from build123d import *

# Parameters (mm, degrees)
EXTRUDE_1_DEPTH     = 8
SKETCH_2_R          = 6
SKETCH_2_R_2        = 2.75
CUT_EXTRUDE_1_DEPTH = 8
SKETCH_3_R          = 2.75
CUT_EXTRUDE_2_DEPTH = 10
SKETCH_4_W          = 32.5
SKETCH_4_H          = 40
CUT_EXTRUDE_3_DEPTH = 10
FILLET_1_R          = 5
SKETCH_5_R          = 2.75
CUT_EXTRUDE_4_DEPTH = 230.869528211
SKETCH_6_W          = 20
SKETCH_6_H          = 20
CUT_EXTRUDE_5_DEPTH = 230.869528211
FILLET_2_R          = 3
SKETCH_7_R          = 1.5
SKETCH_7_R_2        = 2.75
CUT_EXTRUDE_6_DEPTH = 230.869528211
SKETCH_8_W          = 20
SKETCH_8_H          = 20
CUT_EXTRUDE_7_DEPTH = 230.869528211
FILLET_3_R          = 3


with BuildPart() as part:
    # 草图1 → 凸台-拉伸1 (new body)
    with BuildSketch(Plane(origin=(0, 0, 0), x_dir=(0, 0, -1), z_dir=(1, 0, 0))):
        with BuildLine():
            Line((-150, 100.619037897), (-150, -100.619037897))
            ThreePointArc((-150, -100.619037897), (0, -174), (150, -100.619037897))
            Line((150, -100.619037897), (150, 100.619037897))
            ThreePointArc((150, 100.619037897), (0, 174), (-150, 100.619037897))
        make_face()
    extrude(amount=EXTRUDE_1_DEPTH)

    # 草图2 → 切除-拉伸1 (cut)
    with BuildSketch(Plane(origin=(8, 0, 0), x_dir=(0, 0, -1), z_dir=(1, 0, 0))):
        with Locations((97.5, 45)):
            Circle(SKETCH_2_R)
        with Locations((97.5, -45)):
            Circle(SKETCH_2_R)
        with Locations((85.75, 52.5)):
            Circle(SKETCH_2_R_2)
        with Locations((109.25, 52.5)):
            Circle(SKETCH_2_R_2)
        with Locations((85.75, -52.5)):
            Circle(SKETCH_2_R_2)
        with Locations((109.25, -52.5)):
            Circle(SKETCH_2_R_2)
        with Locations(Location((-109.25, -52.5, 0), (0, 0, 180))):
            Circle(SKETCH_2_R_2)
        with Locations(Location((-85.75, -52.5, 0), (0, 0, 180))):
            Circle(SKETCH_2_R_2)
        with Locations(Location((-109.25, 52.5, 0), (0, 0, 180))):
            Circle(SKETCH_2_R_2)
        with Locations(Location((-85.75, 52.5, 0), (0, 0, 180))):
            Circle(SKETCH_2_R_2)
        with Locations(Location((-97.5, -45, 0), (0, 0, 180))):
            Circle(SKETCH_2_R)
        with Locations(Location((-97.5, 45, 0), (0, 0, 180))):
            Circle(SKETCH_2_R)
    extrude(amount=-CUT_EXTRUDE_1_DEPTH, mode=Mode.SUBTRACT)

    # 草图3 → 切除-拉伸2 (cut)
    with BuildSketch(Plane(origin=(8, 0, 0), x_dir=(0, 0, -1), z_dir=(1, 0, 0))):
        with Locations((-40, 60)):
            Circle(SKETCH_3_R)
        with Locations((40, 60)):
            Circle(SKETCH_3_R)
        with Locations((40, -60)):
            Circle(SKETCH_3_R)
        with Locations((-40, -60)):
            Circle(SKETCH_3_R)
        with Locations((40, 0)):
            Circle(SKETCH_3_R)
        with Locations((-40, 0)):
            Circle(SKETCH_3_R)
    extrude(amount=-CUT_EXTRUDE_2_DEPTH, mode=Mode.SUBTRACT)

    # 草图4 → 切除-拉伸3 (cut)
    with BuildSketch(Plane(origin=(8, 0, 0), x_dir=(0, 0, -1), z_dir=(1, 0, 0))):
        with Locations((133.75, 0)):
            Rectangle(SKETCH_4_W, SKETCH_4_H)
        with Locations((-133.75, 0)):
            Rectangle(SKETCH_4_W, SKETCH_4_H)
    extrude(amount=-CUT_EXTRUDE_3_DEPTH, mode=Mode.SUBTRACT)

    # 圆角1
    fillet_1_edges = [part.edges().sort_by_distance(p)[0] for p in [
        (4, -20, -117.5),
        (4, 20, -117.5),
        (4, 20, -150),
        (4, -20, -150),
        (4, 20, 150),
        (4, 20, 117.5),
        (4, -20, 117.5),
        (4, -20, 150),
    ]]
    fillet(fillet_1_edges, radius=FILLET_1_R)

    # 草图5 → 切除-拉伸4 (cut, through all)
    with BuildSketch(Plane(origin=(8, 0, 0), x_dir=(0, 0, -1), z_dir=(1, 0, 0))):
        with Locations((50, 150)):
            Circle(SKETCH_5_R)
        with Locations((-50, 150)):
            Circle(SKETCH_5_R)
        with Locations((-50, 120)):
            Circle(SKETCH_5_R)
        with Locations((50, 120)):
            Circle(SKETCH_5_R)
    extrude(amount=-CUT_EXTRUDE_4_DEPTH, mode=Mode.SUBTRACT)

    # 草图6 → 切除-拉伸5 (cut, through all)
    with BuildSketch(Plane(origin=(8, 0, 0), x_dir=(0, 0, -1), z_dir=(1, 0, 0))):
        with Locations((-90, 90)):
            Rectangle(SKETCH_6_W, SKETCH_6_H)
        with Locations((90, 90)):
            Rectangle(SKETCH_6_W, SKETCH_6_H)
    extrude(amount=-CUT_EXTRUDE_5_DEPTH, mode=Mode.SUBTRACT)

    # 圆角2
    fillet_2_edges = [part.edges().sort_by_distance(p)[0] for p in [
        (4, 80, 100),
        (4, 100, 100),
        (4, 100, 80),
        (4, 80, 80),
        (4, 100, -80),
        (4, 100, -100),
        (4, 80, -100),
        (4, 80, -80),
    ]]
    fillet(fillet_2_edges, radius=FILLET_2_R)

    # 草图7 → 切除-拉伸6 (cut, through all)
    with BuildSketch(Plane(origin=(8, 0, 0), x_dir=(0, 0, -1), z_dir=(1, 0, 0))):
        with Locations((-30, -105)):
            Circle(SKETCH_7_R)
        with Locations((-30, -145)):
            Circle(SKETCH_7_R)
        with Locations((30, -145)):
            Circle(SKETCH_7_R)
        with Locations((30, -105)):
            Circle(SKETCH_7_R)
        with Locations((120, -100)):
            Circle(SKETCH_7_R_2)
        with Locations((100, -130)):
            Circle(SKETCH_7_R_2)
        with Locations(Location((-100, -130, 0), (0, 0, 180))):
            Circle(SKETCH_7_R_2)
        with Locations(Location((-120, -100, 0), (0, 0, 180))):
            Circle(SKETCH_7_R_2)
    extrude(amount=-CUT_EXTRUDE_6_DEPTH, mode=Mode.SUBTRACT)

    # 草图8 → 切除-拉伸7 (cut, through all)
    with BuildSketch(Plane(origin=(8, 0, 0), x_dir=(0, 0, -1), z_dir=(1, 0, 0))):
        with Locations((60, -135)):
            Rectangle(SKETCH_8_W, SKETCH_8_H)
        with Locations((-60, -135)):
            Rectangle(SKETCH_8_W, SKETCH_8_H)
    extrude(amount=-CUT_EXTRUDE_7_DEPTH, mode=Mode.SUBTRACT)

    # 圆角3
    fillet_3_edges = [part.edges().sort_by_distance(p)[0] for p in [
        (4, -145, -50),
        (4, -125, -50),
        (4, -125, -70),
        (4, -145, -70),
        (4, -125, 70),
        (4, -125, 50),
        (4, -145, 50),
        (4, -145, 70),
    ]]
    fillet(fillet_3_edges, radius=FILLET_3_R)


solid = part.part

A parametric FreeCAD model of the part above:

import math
import FreeCAD as App
import Part
import Sketcher
from FreeCAD import Vector
Q = App.Units.Quantity


def edges_at(feature, points):
    """Names of the edges that pass closest to the given points."""
    edges = feature.Shape.Edges
    near = lambda p: min(range(len(edges)), key=lambda i: edges[i].distToShape(Part.Vertex(*p))[0])
    return sorted({f"Edge{near(p) + 1}" for p in points})


def add_polygon(sketch, points):
    """Adds a closed chain of lines whose ends are joined by coincident constraints."""
    first, n = sketch.GeometryCount, len(points)
    for a, b in zip(points, points[1:] + points[:1]):
        sketch.addGeometry(Part.LineSegment(App.Vector(*a, 0), App.Vector(*b, 0)), False)
    for i in range(n):
        sketch.addConstraint(Sketcher.Constraint("Coincident", first + i, 2, first + (i + 1) % n, 1))

doc = App.newDocument("Part")
body = doc.addObject("PartDesign::Body", "Body")

# Sketch on YZ plane
sketch1 = body.newObject("Sketcher::SketchObject", "Sketch")
sketch1.AttachmentSupport = (doc.getObject("YZ_Plane"), [""])
sketch1.MapMode = "FlatFace"
sketch1.addGeometry([
    Part.LineSegment(Vector(101, 150, 0), Vector(-101, 150, 0)),
    Part.ArcOfCircle(Part.Circle(Vector(16, 0, 0), Vector(0, 0, 1), 190), math.radians(128), math.radians(232)),
    Part.LineSegment(Vector(-101, -150, 0), Vector(101, -150, 0)),
    Part.ArcOfCircle(Part.Circle(Vector(-16, 0, 0), Vector(0, 0, 1), 190), math.radians(-52), math.radians(52)),
], False)
sketch1.addConstraint([
    Sketcher.Constraint("Coincident", 0, 2, 1, 1),
    Sketcher.Constraint("Coincident", 1, 2, 2, 1),
    Sketcher.Constraint("Coincident", 2, 2, 3, 1),
    Sketcher.Constraint("Coincident", 3, 2, 0, 1),
    Sketcher.Constraint("Horizontal", 0),
    Sketcher.Constraint("Horizontal", 2),
    Sketcher.Constraint("Equal", 1, 3),
    Sketcher.Constraint("Symmetric", 1, 3, 3, 3, -1, 1),
    Sketcher.Constraint("Symmetric", 0, 2, 1, 2, -1),
    Sketcher.Constraint("Radius", 1, Q("190 mm")),
    Sketcher.Constraint("DistanceX", -1, 1, 1, 3, Q("16 mm")),
    Sketcher.Constraint("DistanceY", -1, 1, 0, 2, Q("150 mm")),
])
pad1 = body.newObject("PartDesign::Pad", "Pad")
pad1.Profile = sketch1
pad1.Length = 8

# Sketch on YZ plane
sketch2 = body.newObject("Sketcher::SketchObject", "Sketch001")
sketch2.AttachmentSupport = (doc.getObject("YZ_Plane"), [""])
sketch2.MapMode = "FlatFace"
sketch2.AttachmentOffset = App.Placement(Vector(0, 0, 8), App.Rotation())
sketch2.addGeometry([
    Part.Circle(Vector(45, -97.5, 0), Vector(0, 0, 1), 6),  # 0
    Part.Circle(Vector(-45, -97.5, 0), Vector(0, 0, 1), 6),  # 1
    Part.Circle(Vector(52.5, -85.8, 0), Vector(0, 0, 1), 2.8),  # 2
    Part.Circle(Vector(52.5, -109.2, 0), Vector(0, 0, 1), 2.8),  # 3
    Part.Circle(Vector(-52.5, -85.8, 0), Vector(0, 0, 1), 2.8),  # 4
    Part.Circle(Vector(-52.5, -109.2, 0), Vector(0, 0, 1), 2.8),  # 5
    Part.Circle(Vector(-52.5, 109.2, 0), Vector(0, 0, 1), 2.8),  # 6
    Part.Circle(Vector(-52.5, 85.8, 0), Vector(0, 0, 1), 2.8),  # 7
    Part.Circle(Vector(52.5, 109.2, 0), Vector(0, 0, 1), 2.8),  # 8
    Part.Circle(Vector(52.5, 85.8, 0), Vector(0, 0, 1), 2.8),  # 9
    Part.Circle(Vector(-45, 97.5, 0), Vector(0, 0, 1), 6),  # 10
    Part.Circle(Vector(45, 97.5, 0), Vector(0, 0, 1), 6),  # 11
], False)
sketch2.addConstraint([
    Sketcher.Constraint("Equal", 0, 1),
    Sketcher.Constraint("Equal", 2, 3),
    Sketcher.Constraint("Equal", 3, 4),
    Sketcher.Constraint("Equal", 4, 5),
    Sketcher.Constraint("Equal", 5, 6),
    Sketcher.Constraint("Equal", 6, 7),
    Sketcher.Constraint("Equal", 7, 8),
    Sketcher.Constraint("Equal", 8, 9),
    Sketcher.Constraint("Equal", 1, 10),
    Sketcher.Constraint("Equal", 10, 11),
    Sketcher.Constraint("Symmetric", 3, 3, 6, 3, -1, 1),
    Sketcher.Constraint("Symmetric", 2, 3, 7, 3, -1, 1),
    Sketcher.Constraint("Symmetric", 5, 3, 8, 3, -1, 1),
    Sketcher.Constraint("Symmetric", 4, 3, 9, 3, -1, 1),
    Sketcher.Constraint("Symmetric", 0, 3, 10, 3, -1, 1),
    Sketcher.Constraint("Symmetric", 1, 3, 11, 3, -1, 1),
    Sketcher.Constraint("Symmetric", 0, 3, 1, 3, -2),
    Sketcher.Constraint("Symmetric", 2, 3, 4, 3, -2),
    Sketcher.Constraint("Symmetric", 3, 3, 5, 3, -2),
    Sketcher.Constraint("Vertical", 2, 3, 3, 3),
    Sketcher.Constraint("Diameter", 0, Q("12 mm")),
    Sketcher.Constraint("Diameter", 2, Q("5.5 mm")),
    Sketcher.Constraint("DistanceX", -1, 1, 0, 3, Q("45 mm")),
    Sketcher.Constraint("DistanceX", 4, 3, 2, 3, Q("105 mm")),
    Sketcher.Constraint("DistanceY", 4, 3, 6, 3, Q("195 mm")),
    Sketcher.Constraint("DistanceY", 0, 3, -1, 1, Q("97.5 mm")),
    Sketcher.Constraint("DistanceY", 3, 3, 2, 3, Q("23.5 mm")),
])
pocket1 = body.newObject("PartDesign::Pocket", "Pocket")
pocket1.Profile = sketch2
pocket1.Length = 8

# Sketch on YZ plane
sketch3 = body.newObject("Sketcher::SketchObject", "Sketch002")
sketch3.AttachmentSupport = (doc.getObject("YZ_Plane"), [""])
sketch3.MapMode = "FlatFace"
sketch3.AttachmentOffset = App.Placement(Vector(0, 0, 8), App.Rotation())
sketch3.addGeometry([
    Part.Circle(Vector(60, 40, 0), Vector(0, 0, 1), 2.8),  # 0
    Part.Circle(Vector(60, -40, 0), Vector(0, 0, 1), 2.8),  # 1
    Part.Circle(Vector(-60, -40, 0), Vector(0, 0, 1), 2.8),  # 2
    Part.Circle(Vector(-60, 40, 0), Vector(0, 0, 1), 2.8),  # 3
    Part.Circle(Vector(0, -40, 0), Vector(0, 0, 1), 2.8),  # 4
    Part.Circle(Vector(0, 40, 0), Vector(0, 0, 1), 2.8),  # 5
], False)
sketch3.addConstraint([
    Sketcher.Constraint("Equal", 0, 1),
    Sketcher.Constraint("Equal", 1, 2),
    Sketcher.Constraint("Equal", 2, 3),
    Sketcher.Constraint("Equal", 3, 4),
    Sketcher.Constraint("Equal", 4, 5),
    Sketcher.Constraint("Symmetric", 0, 3, 2, 3, -1, 1),
    Sketcher.Constraint("Symmetric", 1, 3, 3, 3, -1, 1),
    Sketcher.Constraint("Symmetric", 4, 3, 5, 3, -1, 1),
    Sketcher.Constraint("Symmetric", 1, 3, 2, 3, -2),
    Sketcher.Constraint("PointOnObject", 4, 3, -2),
    Sketcher.Constraint("Horizontal", 2, 3, 4, 3),
    Sketcher.Constraint("Diameter", 0, Q("5.5 mm")),
    Sketcher.Constraint("DistanceX", -1, 1, 0, 3, Q("60 mm")),
    Sketcher.Constraint("DistanceY", -1, 1, 0, 3, Q("40 mm")),
])
pocket2 = body.newObject("PartDesign::Pocket", "Pocket001")
pocket2.Profile = sketch3
pocket2.Length = 10

# Sketch on YZ plane
sketch4 = body.newObject("Sketcher::SketchObject", "Sketch003")
sketch4.AttachmentSupport = (doc.getObject("YZ_Plane"), [""])
sketch4.MapMode = "FlatFace"
sketch4.AttachmentOffset = App.Placement(Vector(0, 0, 8), App.Rotation())
add_polygon(sketch4, [(20, -118), (-20, -118), (-20, -150), (20, -150)])  # lines 0-3
add_polygon(sketch4, [(20, 150), (-20, 150), (-20, 118), (20, 118)])  # lines 4-7
sketch4.addConstraint([
    Sketcher.Constraint("Horizontal", 0),
    Sketcher.Constraint("Vertical", 1),
    Sketcher.Constraint("Horizontal", 2),
    Sketcher.Constraint("Vertical", 3),
    Sketcher.Constraint("Horizontal", 4),
    Sketcher.Constraint("Vertical", 5),
    Sketcher.Constraint("Horizontal", 6),
    Sketcher.Constraint("Vertical", 7),
    Sketcher.Constraint("Symmetric", 2, 2, 4, 2, -1, 1),
    Sketcher.Constraint("Symmetric", 0, 2, 6, 2, -1, 1),
    Sketcher.Constraint("Vertical", 1, 2, 4, 2),
    Sketcher.Constraint("DistanceX", 0, 2, 0, 1, Q("40 mm")),
    Sketcher.Constraint("DistanceY", 1, 2, 1, 1, Q("32.5 mm")),
    Sketcher.Constraint("DistanceY", 1, 2, -1, 1, Q("150 mm")),
])
pocket3 = body.newObject("PartDesign::Pocket", "Pocket002")
pocket3.Profile = sketch4
pocket3.Length = 10
doc.recompute()

fillet = body.newObject("PartDesign::Fillet", "Fillet")
fillet.Base = (pocket3, edges_at(pocket3, [
    (4, -20, -117.5),
    (4, 20, -117.5),
    (4, 20, -150),
    (4, -20, -150),
    (4, 20, 150),
    (4, 20, 117.5),
    (4, -20, 117.5),
    (4, -20, 150),
]))
fillet.Radius = 5

# Sketch on YZ plane
sketch5 = body.newObject("Sketcher::SketchObject", "Sketch004")
sketch5.AttachmentSupport = (doc.getObject("YZ_Plane"), [""])
sketch5.MapMode = "FlatFace"
sketch5.AttachmentOffset = App.Placement(Vector(0, 0, 8), App.Rotation())
sketch5.addGeometry([
    Part.Circle(Vector(150, -50, 0), Vector(0, 0, 1), 2.8),
    Part.Circle(Vector(150, 50, 0), Vector(0, 0, 1), 2.8),
    Part.Circle(Vector(120, 50, 0), Vector(0, 0, 1), 2.8),
    Part.Circle(Vector(120, -50, 0), Vector(0, 0, 1), 2.8),
], False)
sketch5.addConstraint([
    Sketcher.Constraint("Equal", 0, 1),
    Sketcher.Constraint("Equal", 1, 2),
    Sketcher.Constraint("Equal", 2, 3),
    Sketcher.Constraint("Symmetric", 0, 3, 1, 3, -1),
    Sketcher.Constraint("Symmetric", 2, 3, 3, 3, -1),
    Sketcher.Constraint("Horizontal", 1, 3, 2, 3),
    Sketcher.Constraint("Diameter", 0, Q("5.5 mm")),
    Sketcher.Constraint("DistanceX", -1, 1, 0, 3, Q("150 mm")),
    Sketcher.Constraint("DistanceY", 0, 3, -1, 1, Q("50 mm")),
    Sketcher.Constraint("DistanceX", -1, 1, 2, 3, Q("120 mm")),
])
pocket4 = body.newObject("PartDesign::Pocket", "Pocket003")
pocket4.Profile = sketch5
pocket4.Type = "ThroughAll"

# Sketch on YZ plane
sketch6 = body.newObject("Sketcher::SketchObject", "Sketch005")
sketch6.AttachmentSupport = (doc.getObject("YZ_Plane"), [""])
sketch6.MapMode = "FlatFace"
sketch6.AttachmentOffset = App.Placement(Vector(0, 0, 8), App.Rotation())
add_polygon(sketch6, [(100, 100), (80, 100), (80, 80), (100, 80)])  # lines 0-3
add_polygon(sketch6, [(100, -80), (80, -80), (80, -100), (100, -100)])  # lines 4-7
sketch6.addConstraint([
    Sketcher.Constraint("Horizontal", 0),
    Sketcher.Constraint("Vertical", 1),
    Sketcher.Constraint("Horizontal", 2),
    Sketcher.Constraint("Vertical", 3),
    Sketcher.Constraint("Horizontal", 4),
    Sketcher.Constraint("Vertical", 5),
    Sketcher.Constraint("Horizontal", 6),
    Sketcher.Constraint("Vertical", 7),
    Sketcher.Constraint("Symmetric", 1, 2, 4, 2, -1),
    Sketcher.Constraint("Symmetric", 3, 2, 6, 2, -1),
    Sketcher.Constraint("Equal", 6, 1),
    Sketcher.Constraint("DistanceX", 0, 2, 0, 1, Q("20 mm")),
    Sketcher.Constraint("DistanceX", -1, 1, 0, 2, Q("80 mm")),
    Sketcher.Constraint("DistanceY", -1, 1, 0, 2, Q("100 mm")),
])
pocket5 = body.newObject("PartDesign::Pocket", "Pocket004")
pocket5.Profile = sketch6
pocket5.Type = "ThroughAll"
doc.recompute()

fillet2 = body.newObject("PartDesign::Fillet", "Fillet001")
fillet2.Base = (pocket5, edges_at(pocket5, [
    (4, 80, 100),
    (4, 100, 100),
    (4, 100, 80),
    (4, 80, 80),
    (4, 100, -80),
    (4, 100, -100),
    (4, 80, -100),
    (4, 80, -80),
]))
fillet2.Radius = 3

# Sketch on YZ plane
sketch7 = body.newObject("Sketcher::SketchObject", "Sketch006")
sketch7.AttachmentSupport = (doc.getObject("YZ_Plane"), [""])
sketch7.MapMode = "FlatFace"
sketch7.AttachmentOffset = App.Placement(Vector(0, 0, 8), App.Rotation())
sketch7.addGeometry([
    Part.Circle(Vector(-105, 30, 0), Vector(0, 0, 1), 1.5),  # 0
    Part.Circle(Vector(-145, 30, 0), Vector(0, 0, 1), 1.5),  # 1
    Part.Circle(Vector(-145, -30, 0), Vector(0, 0, 1), 1.5),  # 2
    Part.Circle(Vector(-105, -30, 0), Vector(0, 0, 1), 1.5),  # 3
    Part.Circle(Vector(-100, -120, 0), Vector(0, 0, 1), 2.8),  # 4
    Part.Circle(Vector(-130, -100, 0), Vector(0, 0, 1), 2.8),  # 5
    Part.Circle(Vector(-130, 100, 0), Vector(0, 0, 1), 2.8),  # 6
    Part.Circle(Vector(-100, 120, 0), Vector(0, 0, 1), 2.8),  # 7
], False)
sketch7.addConstraint([
    Sketcher.Constraint("Equal", 0, 1),
    Sketcher.Constraint("Equal", 1, 2),
    Sketcher.Constraint("Equal", 2, 3),
    Sketcher.Constraint("Equal", 4, 5),
    Sketcher.Constraint("Equal", 5, 6),
    Sketcher.Constraint("Equal", 6, 7),
    Sketcher.Constraint("Symmetric", 1, 3, 2, 3, -1),
    Sketcher.Constraint("Symmetric", 0, 3, 3, 3, -1),
    Sketcher.Constraint("Symmetric", 5, 3, 6, 3, -1),
    Sketcher.Constraint("Symmetric", 4, 3, 7, 3, -1),
    Sketcher.Constraint("Horizontal", 0, 3, 1, 3),
    Sketcher.Constraint("Diameter", 0, Q("3 mm")),
    Sketcher.Constraint("Diameter", 4, Q("5.5 mm")),
    Sketcher.Constraint("DistanceX", 0, 3, -1, 1, Q("105 mm")),
    Sketcher.Constraint("DistanceY", -1, 1, 0, 3, Q("30 mm")),
    Sketcher.Constraint("DistanceX", 1, 3, -1, 1, Q("145 mm")),
    Sketcher.Constraint("DistanceX", 4, 3, -1, 1, Q("100 mm")),
    Sketcher.Constraint("DistanceY", 4, 3, -1, 1, Q("120 mm")),
    Sketcher.Constraint("DistanceX", 5, 3, -1, 1, Q("130 mm")),
    Sketcher.Constraint("DistanceY", 5, 3, -1, 1, Q("100 mm")),
])
pocket6 = body.newObject("PartDesign::Pocket", "Pocket005")
pocket6.Profile = sketch7
pocket6.Type = "ThroughAll"

# Sketch on YZ plane
sketch8 = body.newObject("Sketcher::SketchObject", "Sketch007")
sketch8.AttachmentSupport = (doc.getObject("YZ_Plane"), [""])
sketch8.MapMode = "FlatFace"
sketch8.AttachmentOffset = App.Placement(Vector(0, 0, 8), App.Rotation())
add_polygon(sketch8, [(-125, -50), (-145, -50), (-145, -70), (-125, -70)])  # lines 0-3
add_polygon(sketch8, [(-125, 70), (-145, 70), (-145, 50), (-125, 50)])  # lines 4-7
sketch8.addConstraint([
    Sketcher.Constraint("Horizontal", 0),
    Sketcher.Constraint("Vertical", 1),
    Sketcher.Constraint("Horizontal", 2),
    Sketcher.Constraint("Vertical", 3),
    Sketcher.Constraint("Horizontal", 4),
    Sketcher.Constraint("Vertical", 5),
    Sketcher.Constraint("Horizontal", 6),
    Sketcher.Constraint("Vertical", 7),
    Sketcher.Constraint("Symmetric", 1, 2, 4, 2, -1),
    Sketcher.Constraint("Symmetric", 3, 2, 6, 2, -1),
    Sketcher.Constraint("Equal", 6, 1),
    Sketcher.Constraint("DistanceX", 0, 2, 0, 1, Q("20 mm")),
    Sketcher.Constraint("DistanceX", 0, 2, -1, 1, Q("145 mm")),
    Sketcher.Constraint("DistanceY", 0, 2, -1, 1, Q("50 mm")),
])
pocket7 = body.newObject("PartDesign::Pocket", "Pocket006")
pocket7.Profile = sketch8
pocket7.Type = "ThroughAll"
doc.recompute()

fillet3 = body.newObject("PartDesign::Fillet", "Fillet002")
fillet3.Base = (pocket7, edges_at(pocket7, [
    (4, -145, -50),
    (4, -125, -50),
    (4, -125, -70),
    (4, -145, -70),
    (4, -125, 70),
    (4, -125, 50),
    (4, -145, 50),
    (4, -145, 70),
]))
fillet3.Radius = 3

doc.recompute()
